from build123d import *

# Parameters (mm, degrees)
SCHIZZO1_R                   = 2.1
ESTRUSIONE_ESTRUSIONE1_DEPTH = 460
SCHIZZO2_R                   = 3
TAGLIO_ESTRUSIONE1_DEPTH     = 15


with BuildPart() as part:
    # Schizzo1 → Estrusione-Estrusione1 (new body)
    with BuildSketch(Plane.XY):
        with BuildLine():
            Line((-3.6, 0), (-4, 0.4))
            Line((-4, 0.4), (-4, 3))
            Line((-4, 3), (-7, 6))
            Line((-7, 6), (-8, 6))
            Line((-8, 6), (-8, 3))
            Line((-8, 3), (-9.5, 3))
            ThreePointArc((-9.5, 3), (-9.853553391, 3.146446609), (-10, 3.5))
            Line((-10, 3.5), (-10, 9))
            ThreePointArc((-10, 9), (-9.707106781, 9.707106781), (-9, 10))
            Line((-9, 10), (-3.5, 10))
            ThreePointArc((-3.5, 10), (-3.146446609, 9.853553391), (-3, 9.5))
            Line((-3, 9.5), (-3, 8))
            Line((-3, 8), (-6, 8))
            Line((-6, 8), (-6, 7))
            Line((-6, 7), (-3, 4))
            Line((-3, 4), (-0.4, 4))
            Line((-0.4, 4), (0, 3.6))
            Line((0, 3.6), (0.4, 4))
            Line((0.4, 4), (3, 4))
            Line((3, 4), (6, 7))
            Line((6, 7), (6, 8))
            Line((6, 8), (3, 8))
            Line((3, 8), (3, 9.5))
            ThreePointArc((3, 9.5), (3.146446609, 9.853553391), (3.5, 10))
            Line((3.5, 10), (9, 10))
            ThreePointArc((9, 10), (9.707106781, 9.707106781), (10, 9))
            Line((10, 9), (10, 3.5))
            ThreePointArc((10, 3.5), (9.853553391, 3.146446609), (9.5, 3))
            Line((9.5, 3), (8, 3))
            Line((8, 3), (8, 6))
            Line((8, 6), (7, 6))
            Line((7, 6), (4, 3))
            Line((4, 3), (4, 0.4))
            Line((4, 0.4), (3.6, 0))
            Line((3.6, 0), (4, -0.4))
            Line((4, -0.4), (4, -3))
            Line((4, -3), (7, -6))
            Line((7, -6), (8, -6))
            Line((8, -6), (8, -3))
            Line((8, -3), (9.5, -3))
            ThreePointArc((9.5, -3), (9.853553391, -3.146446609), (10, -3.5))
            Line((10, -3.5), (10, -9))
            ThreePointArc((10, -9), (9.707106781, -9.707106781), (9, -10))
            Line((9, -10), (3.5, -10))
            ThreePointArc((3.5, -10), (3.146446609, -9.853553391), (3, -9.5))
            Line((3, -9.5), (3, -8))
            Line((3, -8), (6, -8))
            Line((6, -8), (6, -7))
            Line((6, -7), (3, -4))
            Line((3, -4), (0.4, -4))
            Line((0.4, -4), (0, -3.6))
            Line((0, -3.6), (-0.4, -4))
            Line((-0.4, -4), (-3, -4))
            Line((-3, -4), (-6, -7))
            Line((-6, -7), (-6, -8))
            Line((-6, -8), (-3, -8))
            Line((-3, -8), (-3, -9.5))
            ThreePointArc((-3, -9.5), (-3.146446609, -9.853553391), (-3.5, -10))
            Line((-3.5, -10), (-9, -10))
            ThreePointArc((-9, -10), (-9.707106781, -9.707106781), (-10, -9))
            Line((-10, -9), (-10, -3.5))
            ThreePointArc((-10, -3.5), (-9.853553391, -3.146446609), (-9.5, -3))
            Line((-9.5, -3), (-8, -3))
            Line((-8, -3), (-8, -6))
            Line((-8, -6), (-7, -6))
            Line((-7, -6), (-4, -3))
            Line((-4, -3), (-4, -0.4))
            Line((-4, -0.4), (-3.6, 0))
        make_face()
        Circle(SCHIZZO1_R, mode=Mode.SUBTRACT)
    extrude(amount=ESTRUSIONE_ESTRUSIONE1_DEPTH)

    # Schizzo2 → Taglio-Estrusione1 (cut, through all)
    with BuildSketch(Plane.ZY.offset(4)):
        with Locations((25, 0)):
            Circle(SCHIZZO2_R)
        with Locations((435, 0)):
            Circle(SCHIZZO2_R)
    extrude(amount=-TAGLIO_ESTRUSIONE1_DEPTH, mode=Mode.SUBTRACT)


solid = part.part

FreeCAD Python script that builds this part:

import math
import FreeCAD as App
import Part
import Sketcher

doc = App.newDocument("Part")
body = doc.addObject("PartDesign::Body", "Body")

# Sketch on XY plane
sketch1 = body.newObject("Sketcher::SketchObject", "Sketch")
sketch1.AttachmentSupport = (doc.getObject("XY_Plane"), [""])
sketch1.MapMode = "FlatFace"
sketch1.addGeometry(Part.LineSegment(App.Vector(-4, 0.4, 0), App.Vector(-3.6, 0, 0)), False)
sketch1.addGeometry(Part.LineSegment(App.Vector(-3.6, 0, 0), App.Vector(-4, -0.4, 0)), False)
sketch1.addGeometry(Part.LineSegment(App.Vector(-4, -0.4, 0), App.Vector(-4, -3, 0)), False)
sketch1.addGeometry(Part.LineSegment(App.Vector(-4, -3, 0), App.Vector(-7, -6, 0)), False)
sketch1.addGeometry(Part.LineSegment(App.Vector(-7, -6, 0), App.Vector(-8, -6, 0)), False)
sketch1.addGeometry(Part.LineSegment(App.Vector(-8, -6, 0), App.Vector(-8, -3, 0)), False)
sketch1.addGeometry(Part.LineSegment(App.Vector(-8, -3, 0), App.Vector(-9.5, -3, 0)), False)
sketch1.addGeometry(Part.ArcOfCircle(Part.Circle(App.Vector(-9.5, -3.5, 0), App.Vector(0, 0, 1), 0.5), math.radians(90), math.radians(180)), False)
sketch1.addGeometry(Part.LineSegment(App.Vector(-10, -3.5, 0), App.Vector(-10, -9, 0)), False)
sketch1.addGeometry(Part.ArcOfCircle(Part.Circle(App.Vector(-9, -9, 0), App.Vector(0, 0, 1), 1), math.radians(-180), math.radians(-90)), False)
sketch1.addGeometry(Part.LineSegment(App.Vector(-9, -10, 0), App.Vector(-3.5, -10, 0)), False)
sketch1.addGeometry(Part.ArcOfCircle(Part.Circle(App.Vector(-3.5, -9.5, 0), App.Vector(0, 0, 1), 0.5), math.radians(-90), math.radians(0)), False)
sketch1.addGeometry(Part.LineSegment(App.Vector(-3, -9.5, 0), App.Vector(-3, -8, 0)), False)
sketch1.addGeometry(Part.LineSegment(App.Vector(-3, -8, 0), App.Vector(-6, -8, 0)), False)
sketch1.addGeometry(Part.LineSegment(App.Vector(-6, -8, 0), App.Vector(-6, -7, 0)), False)
sketch1.addGeometry(Part.LineSegment(App.Vector(-6, -7, 0), App.Vector(-3, -4, 0)), False)
sketch1.addGeometry(Part.LineSegment(App.Vector(-3, -4, 0), App.Vector(-0.4, -4, 0)), False)
sketch1.addGeometry(Part.LineSegment(App.Vector(-0.4, -4, 0), App.Vector(0, -3.6, 0)), False)
sketch1.addGeometry(Part.LineSegment(App.Vector(0, -3.6, 0), App.Vector(0.4, -4, 0)), False)
sketch1.addGeometry(Part.LineSegment(App.Vector(0.4, -4, 0), App.Vector(3, -4, 0)), False)
sketch1.addGeometry(Part.LineSegment(App.Vector(3, -4, 0), App.Vector(6, -7, 0)), False)
sketch1.addGeometry(Part.LineSegment(App.Vector(6, -7, 0), App.Vector(6, -8, 0)), False)
sketch1.addGeometry(Part.LineSegment(App.Vector(6, -8, 0), App.Vector(3, -8, 0)), False)
sketch1.addGeometry(Part.LineSegment(App.Vector(3, -8, 0), App.Vector(3, -9.5, 0)), False)
sketch1.addGeometry(Part.ArcOfCircle(Part.Circle(App.Vector(3.5, -9.5, 0), App.Vector(0, 0, 1), 0.5), math.radians(180), math.radians(270)), False)
sketch1.addGeometry(Part.LineSegment(App.Vector(3.5, -10, 0), App.Vector(9, -10, 0)), False)
sketch1.addGeometry(Part.ArcOfCircle(Part.Circle(App.Vector(9, -9, 0), App.Vector(0, 0, 1), 1), math.radians(-90), math.radians(0)), False)
sketch1.addGeometry(Part.LineSegment(App.Vector(10, -9, 0), App.Vector(10, -3.5, 0)), False)
sketch1.addGeometry(Part.ArcOfCircle(Part.Circle(App.Vector(9.5, -3.5, 0), App.Vector(0, 0, 1), 0.5), math.radians(0), math.radians(90)), False)
sketch1.addGeometry(Part.LineSegment(App.Vector(9.5, -3, 0), App.Vector(8, -3, 0)), False)
sketch1.addGeometry(Part.LineSegment(App.Vector(8, -3, 0), App.Vector(8, -6, 0)), False)
sketch1.addGeometry(Part.LineSegment(App.Vector(8, -6, 0), App.Vector(7, -6, 0)), False)
sketch1.addGeometry(Part.LineSegment(App.Vector(7, -6, 0), App.Vector(4, -3, 0)), False)
sketch1.addGeometry(Part.LineSegment(App.Vector(4, -3, 0), App.Vector(4, -0.4, 0)), False)
sketch1.addGeometry(Part.LineSegment(App.Vector(4, -0.4, 0), App.Vector(3.6, 0, 0)), False)
sketch1.addGeometry(Part.LineSegment(App.Vector(3.6, 0, 0), App.Vector(4, 0.4, 0)), False)
sketch1.addGeometry(Part.LineSegment(App.Vector(4, 0.4, 0), App.Vector(4, 3, 0)), False)
sketch1.addGeometry(Part.LineSegment(App.Vector(4, 3, 0), App.Vector(7, 6, 0)), False)
sketch1.addGeometry(Part.LineSegment(App.Vector(7, 6, 0), App.Vector(8, 6, 0)), False)
sketch1.addGeometry(Part.LineSegment(App.Vector(8, 6, 0), App.Vector(8, 3, 0)), False)
sketch1.addGeometry(Part.LineSegment(App.Vector(8, 3, 0), App.Vector(9.5, 3, 0)), False)
sketch1.addGeometry(Part.ArcOfCircle(Part.Circle(App.Vector(9.5, 3.5, 0), App.Vector(0, 0, 1), 0.5), math.radians(-90), math.radians(0)), False)
sketch1.addGeometry(Part.LineSegment(App.Vector(10, 3.5, 0), App.Vector(10, 9, 0)), False)
sketch1.addGeometry(Part.ArcOfCircle(Part.Circle(App.Vector(9, 9, 0), App.Vector(0, 0, 1), 1), math.radians(0), math.radians(90)), False)
sketch1.addGeometry(Part.LineSegment(App.Vector(9, 10, 0), App.Vector(3.5, 10, 0)), False)
sketch1.addGeometry(Part.ArcOfCircle(Part.Circle(App.Vector(3.5, 9.5, 0), App.Vector(0, 0, 1), 0.5), math.radians(90), math.radians(180)), False)
sketch1.addGeometry(Part.LineSegment(App.Vector(3, 9.5, 0), App.Vector(3, 8, 0)), False)
sketch1.addGeometry(Part.LineSegment(App.Vector(3, 8, 0), App.Vector(6, 8, 0)), False)
sketch1.addGeometry(Part.LineSegment(App.Vector(6, 8, 0), App.Vector(6, 7, 0)), False)
sketch1.addGeometry(Part.LineSegment(App.Vector(6, 7, 0), App.Vector(3, 4, 0)), False)
sketch1.addGeometry(Part.LineSegment(App.Vector(3, 4, 0), App.Vector(0.4, 4, 0)), False)
sketch1.addGeometry(Part.LineSegment(App.Vector(0.4, 4, 0), App.Vector(0, 3.6, 0)), False)
sketch1.addGeometry(Part.LineSegment(App.Vector(0, 3.6, 0), App.Vector(-0.4, 4, 0)), False)
sketch1.addGeometry(Part.LineSegment(App.Vector(-0.4, 4, 0), App.Vector(-3, 4, 0)), False)
sketch1.addGeometry(Part.LineSegment(App.Vector(-3, 4, 0), App.Vector(-6, 7, 0)), False)
sketch1.addGeometry(Part.LineSegment(App.Vector(-6, 7, 0), App.Vector(-6, 8, 0)), False)
sketch1.addGeometry(Part.LineSegment(App.Vector(-6, 8, 0), App.Vector(-3, 8, 0)), False)
sketch1.addGeometry(Part.LineSegment(App.Vector(-3, 8, 0), App.Vector(-3, 9.5, 0)), False)
sketch1.addGeometry(Part.ArcOfCircle(Part.Circle(App.Vector(-3.5, 9.5, 0), App.Vector(0, 0, 1), 0.5), math.radians(0), math.radians(90)), False)
sketch1.addGeometry(Part.LineSegment(App.Vector(-3.5, 10, 0), App.Vector(-9, 10, 0)), False)
sketch1.addGeometry(Part.ArcOfCircle(Part.Circle(App.Vector(-9, 9, 0), App.Vector(0, 0, 1), 1), math.radians(90), math.radians(180)), False)
sketch1.addGeometry(Part.LineSegment(App.Vector(-10, 9, 0), App.Vector(-10, 3.5, 0)), False)
sketch1.addGeometry(Part.ArcOfCircle(Part.Circle(App.Vector(-9.5, 3.5, 0), App.Vector(0, 0, 1), 0.5), math.radians(180), math.radians(270)), False)
sketch1.addGeometry(Part.LineSegment(App.Vector(-9.5, 3, 0), App.Vector(-8, 3, 0)), False)
sketch1.addGeometry(Part.LineSegment(App.Vector(-8, 3, 0), App.Vector(-8, 6, 0)), False)
sketch1.addGeometry(Part.LineSegment(App.Vector(-8, 6, 0), App.Vector(-7, 6, 0)), False)
sketch1.addGeometry(Part.LineSegment(App.Vector(-7, 6, 0), App.Vector(-4, 3, 0)), False)
sketch1.addGeometry(Part.LineSegment(App.Vector(-4, 3, 0), App.Vector(-4, 0.4, 0)), False)
sketch1.addGeometry(Part.Circle(App.Vector(0, 0, 0), App.Vector(0, 0, 1), 2.1), False)
sketch1.addConstraint(Sketcher.Constraint("Coincident", 0, 2, 1, 1))
sketch1.addConstraint(Sketcher.Constraint("Coincident", 1, 2, 2, 1))
sketch1.addConstraint(Sketcher.Constraint("Coincident", 2, 2, 3, 1))
sketch1.addConstraint(Sketcher.Constraint("Coincident", 3, 2, 4, 1))
sketch1.addConstraint(Sketcher.Constraint("Coincident", 4, 2, 5, 1))
sketch1.addConstraint(Sketcher.Constraint("Coincident", 5, 2, 6, 1))
sketch1.addConstraint(Sketcher.Constraint("Tangent", 6, 2, 7, 1))
sketch1.addConstraint(Sketcher.Constraint("Tangent", 7, 2, 8, 1))
sketch1.addConstraint(Sketcher.Constraint("Tangent", 8, 2, 9, 1))
sketch1.addConstraint(Sketcher.Constraint("Tangent", 9, 2, 10, 1))
sketch1.addConstraint(Sketcher.Constraint("Tangent", 10, 2, 11, 1))
sketch1.addConstraint(Sketcher.Constraint("Tangent", 11, 2, 12, 1))
sketch1.addConstraint(Sketcher.Constraint("Coincident", 12, 2, 13, 1))
sketch1.addConstraint(Sketcher.Constraint("Coincident", 13, 2, 14, 1))
sketch1.addConstraint(Sketcher.Constraint("Coincident", 14, 2, 15, 1))
sketch1.addConstraint(Sketcher.Constraint("Coincident", 15, 2, 16, 1))
sketch1.addConstraint(Sketcher.Constraint("Coincident", 16, 2, 17, 1))
sketch1.addConstraint(Sketcher.Constraint("Coincident", 17, 2, 18, 1))
sketch1.addConstraint(Sketcher.Constraint("Coincident", 18, 2, 19, 1))
sketch1.addConstraint(Sketcher.Constraint("Coincident", 19, 2, 20, 1))
sketch1.addConstraint(Sketcher.Constraint("Coincident", 20, 2, 21, 1))
sketch1.addConstraint(Sketcher.Constraint("Coincident", 21, 2, 22, 1))
sketch1.addConstraint(Sketcher.Constraint("Coincident", 22, 2, 23, 1))
sketch1.addConstraint(Sketcher.Constraint("Tangent", 23, 2, 24, 1))
sketch1.addConstraint(Sketcher.Constraint("Tangent", 24, 2, 25, 1))
sketch1.addConstraint(Sketcher.Constraint("Tangent", 25, 2, 26, 1))
sketch1.addConstraint(Sketcher.Constraint("Tangent", 26, 2, 27, 1))
sketch1.addConstraint(Sketcher.Constraint("Tangent", 27, 2, 28, 1))
sketch1.addConstraint(Sketcher.Constraint("Tangent", 28, 2, 29, 1))
sketch1.addConstraint(Sketcher.Constraint("Coincident", 29, 2, 30, 1))
sketch1.addConstraint(Sketcher.Constraint("Coincident", 30, 2, 31, 1))
sketch1.addConstraint(Sketcher.Constraint("Coincident", 31, 2, 32, 1))
sketch1.addConstraint(Sketcher.Constraint("Coincident", 32, 2, 33, 1))
sketch1.addConstraint(Sketcher.Constraint("Coincident", 33, 2, 34, 1))
sketch1.addConstraint(Sketcher.Constraint("Coincident", 34, 2, 35, 1))
sketch1.addConstraint(Sketcher.Constraint("Coincident", 35, 2, 36, 1))
sketch1.addConstraint(Sketcher.Constraint("Coincident", 36, 2, 37, 1))
sketch1.addConstraint(Sketcher.Constraint("Coincident", 37, 2, 38, 1))
sketch1.addConstraint(Sketcher.Constraint("Coincident", 38, 2, 39, 1))
sketch1.addConstraint(Sketcher.Constraint("Coincident", 39, 2, 40, 1))
sketch1.addConstraint(Sketcher.Constraint("Tangent", 40, 2, 41, 1))
sketch1.addConstraint(Sketcher.Constraint("Tangent", 41, 2, 42, 1))
sketch1.addConstraint(Sketcher.Constraint("Tangent", 42, 2, 43, 1))
sketch1.addConstraint(Sketcher.Constraint("Tangent", 43, 2, 44, 1))
sketch1.addConstraint(Sketcher.Constraint("Tangent", 44, 2, 45, 1))
sketch1.addConstraint(Sketcher.Constraint("Tangent", 45, 2, 46, 1))
sketch1.addConstraint(Sketcher.Constraint("Coincident", 46, 2, 47, 1))
sketch1.addConstraint(Sketcher.Constraint("Coincident", 47, 2, 48, 1))
sketch1.addConstraint(Sketcher.Constraint("Coincident", 48, 2, 49, 1))
sketch1.addConstraint(Sketcher.Constraint("Coincident", 49, 2, 50, 1))
sketch1.addConstraint(Sketcher.Constraint("Coincident", 50, 2, 51, 1))
sketch1.addConstraint(Sketcher.Constraint("Coincident", 51, 2, 52, 1))
sketch1.addConstraint(Sketcher.Constraint("Coincident", 52, 2, 53, 1))
sketch1.addConstraint(Sketcher.Constraint("Coincident", 53, 2, 54, 1))
sketch1.addConstraint(Sketcher.Constraint("Coincident", 54, 2, 55, 1))
sketch1.addConstraint(Sketcher.Constraint("Coincident", 55, 2, 56, 1))
sketch1.addConstraint(Sketcher.Constraint("Coincident", 56, 2, 57, 1))
sketch1.addConstraint(Sketcher.Constraint("Tangent", 57, 2, 58, 1))
sketch1.addConstraint(Sketcher.Constraint("Tangent", 58, 2, 59, 1))
sketch1.addConstraint(Sketcher.Constraint("Tangent", 59, 2, 60, 1))
sketch1.addConstraint(Sketcher.Constraint("Tangent", 60, 2, 61, 1))
sketch1.addConstraint(Sketcher.Constraint("Tangent", 61, 2, 62, 1))
sketch1.addConstraint(Sketcher.Constraint("Tangent", 62, 2, 63, 1))
sketch1.addConstraint(Sketcher.Constraint("Coincident", 63, 2, 64, 1))
sketch1.addConstraint(Sketcher.Constraint("Coincident", 64, 2, 65, 1))
sketch1.addConstraint(Sketcher.Constraint("Coincident", 65, 2, 66, 1))
sketch1.addConstraint(Sketcher.Constraint("Coincident", 66, 2, 67, 1))
sketch1.addConstraint(Sketcher.Constraint("Coincident", 67, 2, 0, 1))
sketch1.addConstraint(Sketcher.Constraint("Vertical", 2))
sketch1.addConstraint(Sketcher.Constraint("Horizontal", 4))
sketch1.addConstraint(Sketcher.Constraint("Vertical", 5))
sketch1.addConstraint(Sketcher.Constraint("Horizontal", 6))
sketch1.addConstraint(Sketcher.Constraint("Vertical", 8))
sketch1.addConstraint(Sketcher.Constraint("Horizontal", 10))
sketch1.addConstraint(Sketcher.Constraint("Vertical", 12))
sketch1.addConstraint(Sketcher.Constraint("Horizontal", 13))
sketch1.addConstraint(Sketcher.Constraint("Vertical", 14))
sketch1.addConstraint(Sketcher.Constraint("Horizontal", 16))
sketch1.addConstraint(Sketcher.Constraint("Horizontal", 19))
sketch1.addConstraint(Sketcher.Constraint("Vertical", 21))
sketch1.addConstraint(Sketcher.Constraint("Horizontal", 22))
sketch1.addConstraint(Sketcher.Constraint("Vertical", 23))
sketch1.addConstraint(Sketcher.Constraint("Horizontal", 25))
sketch1.addConstraint(Sketcher.Constraint("Vertical", 27))
sketch1.addConstraint(Sketcher.Constraint("Horizontal", 29))
sketch1.addConstraint(Sketcher.Constraint("Vertical", 30))
sketch1.addConstraint(Sketcher.Constraint("Horizontal", 31))
sketch1.addConstraint(Sketcher.Constraint("Vertical", 33))
sketch1.addConstraint(Sketcher.Constraint("Vertical", 36))
sketch1.addConstraint(Sketcher.Constraint("Horizontal", 38))
sketch1.addConstraint(Sketcher.Constraint("Vertical", 39))
sketch1.addConstraint(Sketcher.Constraint("Horizontal", 40))
sketch1.addConstraint(Sketcher.Constraint("Vertical", 42))
sketch1.addConstraint(Sketcher.Constraint("Horizontal", 44))
sketch1.addConstraint(Sketcher.Constraint("Vertical", 46))
sketch1.addConstraint(Sketcher.Constraint("Horizontal", 47))
sketch1.addConstraint(Sketcher.Constraint("Vertical", 48))
sketch1.addConstraint(Sketcher.Constraint("Horizontal", 50))
sketch1.addConstraint(Sketcher.Constraint("Horizontal", 53))
sketch1.addConstraint(Sketcher.Constraint("Vertical", 55))
sketch1.addConstraint(Sketcher.Constraint("Horizontal", 56))
sketch1.addConstraint(Sketcher.Constraint("Vertical", 57))
sketch1.addConstraint(Sketcher.Constraint("Horizontal", 59))
sketch1.addConstraint(Sketcher.Constraint("Vertical", 61))
sketch1.addConstraint(Sketcher.Constraint("Horizontal", 63))
sketch1.addConstraint(Sketcher.Constraint("Vertical", 64))
sketch1.addConstraint(Sketcher.Constraint("Horizontal", 65))
sketch1.addConstraint(Sketcher.Constraint("Vertical", 67))
sketch1.addConstraint(Sketcher.Constraint("Coincident", 68, 3, -1, 1))
sketch1.addConstraint(Sketcher.Constraint("Equal", 7, 11))
sketch1.addConstraint(Sketcher.Constraint("Equal", 11, 24))
sketch1.addConstraint(Sketcher.Constraint("Equal", 9, 26))
sketch1.addConstraint(Sketcher.Constraint("Equal", 24, 28))
sketch1.addConstraint(Sketcher.Constraint("Equal", 28, 41))
sketch1.addConstraint(Sketcher.Constraint("Equal", 26, 43))
sketch1.addConstraint(Sketcher.Constraint("Equal", 41, 45))
sketch1.addConstraint(Sketcher.Constraint("Equal", 45, 58))
sketch1.addConstraint(Sketcher.Constraint("Equal", 43, 60))
sketch1.addConstraint(Sketcher.Constraint("Equal", 58, 62))
sketch1.addConstraint(Sketcher.Constraint("Symmetric", 7, 3, 41, 3, -1, 1))
sketch1.addConstraint(Sketcher.Constraint("Symmetric", 11, 3, 45, 3, -1, 1))
sketch1.addConstraint(Sketcher.Constraint("Symmetric", 24, 3, 58, 3, -1, 1))
sketch1.addConstraint(Sketcher.Constraint("Symmetric", 28, 3, 62, 3, -1, 1))
sketch1.addConstraint(Sketcher.Constraint("Symmetric", 0, 2, 34, 2, -1, 1))
sketch1.addConstraint(Sketcher.Constraint("Symmetric", 1, 2, 35, 2, -1, 1))
sketch1.addConstraint(Sketcher.Constraint("Symmetric", 3, 2, 37, 2, -1, 1))
sketch1.addConstraint(Sketcher.Constraint("Symmetric", 13, 2, 47, 2, -1, 1))
sketch1.addConstraint(Sketcher.Constraint("Symmetric", 15, 2, 49, 2, -1, 1))
sketch1.addConstraint(Sketcher.Constraint("Symmetric", 17, 2, 51, 2, -1, 1))
sketch1.addConstraint(Sketcher.Constraint("Symmetric", 18, 2, 52, 2, -1, 1))
sketch1.addConstraint(Sketcher.Constraint("Symmetric", 20, 2, 54, 2, -1, 1))
sketch1.addConstraint(Sketcher.Constraint("Symmetric", 30, 2, 64, 2, -1, 1))
sketch1.addConstraint(Sketcher.Constraint("Symmetric", 32, 2, 66, 2, -1, 1))
sketch1.addConstraint(Sketcher.Constraint("Symmetric", 11, 3, 24, 3, -2))
sketch1.addConstraint(Sketcher.Constraint("Symmetric", 7, 3, 28, 3, -2))
sketch1.addConstraint(Sketcher.Constraint("Symmetric", 16, 2, 18, 2, -2))
sketch1.addConstraint(Sketcher.Constraint("Symmetric", 14, 2, 20, 2, -2))
sketch1.addConstraint(Sketcher.Constraint("Symmetric", 4, 2, 30, 2, -2))
sketch1.addConstraint(Sketcher.Constraint("Symmetric", 2, 2, 32, 2, -2))
sketch1.addConstraint(Sketcher.Constraint("PointOnObject", 0, 2, -1))
sketch1.addConstraint(Sketcher.Constraint("PointOnObject", 17, 2, -2))
sketch1.addConstraint(Sketcher.Constraint("Perpendicular", 0, 1))
sketch1.addConstraint(Sketcher.Constraint("Parallel", 1, 3))
sketch1.addConstraint(Sketcher.Constraint("Parallel", 3, 15))
sketch1.addConstraint(Sketcher.Constraint("Parallel", 15, 17))
sketch1.addConstraint(Sketcher.Constraint("Perpendicular", 17, 18))
sketch1.addConstraint(Sketcher.Constraint("Parallel", 18, 20))
sketch1.addConstraint(Sketcher.Constraint("Parallel", 20, 32))
sketch1.addConstraint(Sketcher.Constraint("Parallel", 32, 34))
sketch1.addConstraint(Sketcher.Constraint("Parallel", 35, 37))
sketch1.addConstraint(Sketcher.Constraint("Parallel", 37, 49))
sketch1.addConstraint(Sketcher.Constraint("Parallel", 49, 51))
sketch1.addConstraint(Sketcher.Constraint("Parallel", 52, 54))
sketch1.addConstraint(Sketcher.Constraint("Parallel", 54, 66))
sketch1.addConstraint(Sketcher.Constraint("Horizontal", 2, 2, 5, 2))
sketch1.addConstraint(Sketcher.Constraint("Horizontal", 13, 2, 21, 2))
sketch1.addConstraint(Sketcher.Constraint("Horizontal", 47, 2, 55, 2))
sketch1.addConstraint(Sketcher.Constraint("Vertical", 12, 2, 15, 2))
sketch1.addConstraint(Sketcher.Constraint("Vertical", 30, 2, 38, 2))
sketch1.addConstraint(Sketcher.Constraint("Equal", 53, 2))
sketch1.addConstraint(Sketcher.Constraint("Equal", 56, 5))
sketch1.addConstraint(Sketcher.Constraint("Equal", 59, 8))
sketch1.addConstraint(Sketcher.Constraint("Equal", 63, 12))
sketch1.addConstraint(Sketcher.Constraint("Equal", 65, 14))
sketch1.addConstraint(Sketcher.Constraint("Equal", 1, 17))
sketch1.addConstraint(Sketcher.Constraint("Radius", 9, 1.0))
sketch1.addConstraint(Sketcher.Constraint("Diameter", 68, 4.2))
sketch1.addConstraint(Sketcher.Constraint("Radius", 7, 0.5))
sketch1.addConstraint(Sketcher.Constraint("DistanceX", 4, 2, 4, 1, 1.0))
sketch1.addConstraint(Sketcher.Constraint("DistanceX", 13, 2, 13, 1, 3.0))
sketch1.addConstraint(Sketcher.Constraint("DistanceX", 6, 2, 6, 1, 1.5))
sketch1.addConstraint(Sketcher.Constraint("DistanceX", 10, 1, 10, 2, 5.5))
sketch1.addConstraint(Sketcher.Constraint("DistanceX", 16, 1, 16, 2, 2.6))
sketch1.addConstraint(Sketcher.Constraint("DistanceX", 9, 3, -1, 1, 9.0))
pad1 = body.newObject("PartDesign::Pad", "Pad")
pad1.Profile = sketch1
pad1.Length = 460

# Sketch on YZ plane
sketch2 = body.newObject("Sketcher::SketchObject", "Sketch001")
sketch2.AttachmentSupport = (doc.getObject("YZ_Plane"), [""])
sketch2.MapMode = "FlatFace"
sketch2.AttachmentOffset = App.Placement(App.Vector(0, 0, -4), App.Rotation())
sketch2.addGeometry(Part.Circle(App.Vector(0, 25, 0), App.Vector(0, 0, 1), 3), False)
sketch2.addGeometry(Part.Circle(App.Vector(0, 435, 0), App.Vector(0, 0, 1), 3), False)
sketch2.addConstraint(Sketcher.Constraint("Equal", 0, 1))
sketch2.addConstraint(Sketcher.Constraint("PointOnObject", 0, 3, -2))
sketch2.addConstraint(Sketcher.Constraint("PointOnObject", 1, 3, -2))
sketch2.addConstraint(Sketcher.Constraint("Diameter", 0, 6.0))
sketch2.addConstraint(Sketcher.Constraint("DistanceY", -1, 1, 0, 3, 25.0))
sketch2.addConstraint(Sketcher.Constraint("DistanceY", -1, 1, 1, 3, 435.0))
pocket1 = body.newObject("PartDesign::Pocket", "Pocket")
pocket1.Profile = sketch2
pocket1.Type = "ThroughAll"
pocket1.Reversed = True

doc.recompute()
